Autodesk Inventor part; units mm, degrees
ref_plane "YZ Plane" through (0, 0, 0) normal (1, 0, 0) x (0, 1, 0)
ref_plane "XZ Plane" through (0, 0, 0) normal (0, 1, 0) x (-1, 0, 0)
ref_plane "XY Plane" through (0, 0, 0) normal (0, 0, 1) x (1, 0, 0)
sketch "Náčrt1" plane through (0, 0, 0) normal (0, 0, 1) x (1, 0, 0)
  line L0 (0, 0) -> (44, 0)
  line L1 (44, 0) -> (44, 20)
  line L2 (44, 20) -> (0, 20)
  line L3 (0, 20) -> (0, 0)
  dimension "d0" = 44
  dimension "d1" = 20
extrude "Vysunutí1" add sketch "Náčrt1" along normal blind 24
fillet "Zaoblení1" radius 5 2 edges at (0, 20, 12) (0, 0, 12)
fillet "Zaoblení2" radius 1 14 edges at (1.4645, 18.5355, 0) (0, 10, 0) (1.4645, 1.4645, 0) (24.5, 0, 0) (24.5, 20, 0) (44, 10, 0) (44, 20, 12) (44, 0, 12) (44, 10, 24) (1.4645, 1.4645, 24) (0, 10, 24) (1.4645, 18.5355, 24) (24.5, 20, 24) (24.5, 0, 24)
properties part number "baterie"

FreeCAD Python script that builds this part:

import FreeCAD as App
import Part
import Sketcher
Q = App.Units.Quantity


def edges_at(feature, points):
    """Names of the edges that pass closest to the given points."""
    edges = feature.Shape.Edges
    near = lambda p: min(range(len(edges)), key=lambda i: edges[i].distToShape(Part.Vertex(*p))[0])
    return sorted({f"Edge{near(p) + 1}" for p in points})


def add_polygon(sketch, points):
    """Adds a closed chain of lines whose ends are joined by coincident constraints."""
    first, n = sketch.GeometryCount, len(points)
    for a, b in zip(points, points[1:] + points[:1]):
        sketch.addGeometry(Part.LineSegment(App.Vector(*a, 0), App.Vector(*b, 0)), False)
    for i in range(n):
        sketch.addConstraint(Sketcher.Constraint("Coincident", first + i, 2, first + (i + 1) % n, 1))

doc = App.newDocument("Part")
params = doc.addObject("Spreadsheet::Sheet", "Params")
for row, (alias, value) in enumerate([
    ("sketch1_width", "44 mm"),
    ("sketch1_height", "20 mm"),
    ("pad1_length", "24 mm"),
    ("fillet_radius", "5 mm"),
    ("fillet2_radius", "1 mm"),
], start=1):
    params.set(f"A{row}", alias)
    params.set(f"B{row}", "=" + value)
    params.setAlias(f"B{row}", alias)

body = doc.addObject("PartDesign::Body", "Body")

# Sketch on XY plane
sketch1 = body.newObject("Sketcher::SketchObject", "Sketch")
sketch1.AttachmentSupport = (doc.getObject("XY_Plane"), [""])
sketch1.MapMode = "FlatFace"
add_polygon(sketch1, [(0, 20), (0, 0), (44, 0), (44, 20)])  # lines 0-3
sketch1.addConstraint([
    Sketcher.Constraint("Vertical", 0),
    Sketcher.Constraint("Horizontal", 1),
    Sketcher.Constraint("Vertical", 2),
    Sketcher.Constraint("Horizontal", 3),
    Sketcher.Constraint("Coincident", 0, 2, -1, 1),
    Sketcher.Constraint("DistanceX", 1, 1, 1, 2, Q("44 mm")),
    Sketcher.Constraint("DistanceY", 0, 2, 0, 1, Q("20 mm")),
])
sketch1.setExpression("Constraints[9]", "Params.sketch1_width")
sketch1.setExpression("Constraints[10]", "Params.sketch1_height")
pad1 = body.newObject("PartDesign::Pad", "Pad")
pad1.Profile = sketch1
pad1.setExpression("Length", "Params.pad1_length")
doc.recompute()

fillet = body.newObject("PartDesign::Fillet", "Fillet")
fillet.Base = (pad1, edges_at(pad1, [(0, 20, 12), (0, 0, 12)]))
fillet.setExpression("Radius", "Params.fillet_radius")
doc.recompute()

fillet2 = body.newObject("PartDesign::Fillet", "Fillet001")
fillet2.Base = (fillet, ["Edge1"])
fillet2.UseAllEdges = True
fillet2.setExpression("Radius", "Params.fillet2_radius")

doc.recompute()
